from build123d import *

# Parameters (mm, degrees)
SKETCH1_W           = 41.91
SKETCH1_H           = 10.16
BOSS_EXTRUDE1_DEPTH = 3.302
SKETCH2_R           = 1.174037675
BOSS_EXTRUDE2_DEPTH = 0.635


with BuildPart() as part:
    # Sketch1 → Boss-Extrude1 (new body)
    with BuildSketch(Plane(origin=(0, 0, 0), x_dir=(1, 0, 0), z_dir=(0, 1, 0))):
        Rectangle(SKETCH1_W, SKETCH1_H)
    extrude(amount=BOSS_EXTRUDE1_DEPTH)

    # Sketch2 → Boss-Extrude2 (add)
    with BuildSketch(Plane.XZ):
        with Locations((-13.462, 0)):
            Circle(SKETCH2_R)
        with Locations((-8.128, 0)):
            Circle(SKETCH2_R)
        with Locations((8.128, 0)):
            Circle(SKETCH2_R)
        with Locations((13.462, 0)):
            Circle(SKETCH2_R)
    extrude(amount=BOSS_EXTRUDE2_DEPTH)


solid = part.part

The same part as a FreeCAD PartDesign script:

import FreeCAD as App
import Part
import Sketcher

V = App.Vector
Q = App.Units.Quantity


def add_polygon(sketch, points):
    """Adds a closed chain of lines whose ends are joined by coincident constraints."""
    first, n = sketch.GeometryCount, len(points)
    for a, b in zip(points, points[1:] + points[:1]):
        sketch.addGeometry(Part.LineSegment(App.Vector(*a, 0), App.Vector(*b, 0)), False)
    for i in range(n):
        sketch.addConstraint(Sketcher.Constraint("Coincident", first + i, 2, first + (i + 1) % n, 1))

doc = App.newDocument("Part")
body = doc.addObject("PartDesign::Body", "Body")

# Sketch on XZ plane
sketch1 = doc.addObject("Sketcher::SketchObject", "Sketch")
body.addObject(sketch1)
sketch1.AttachmentSupport = (doc.XZ_Plane, [""])
sketch1.MapMode = "FlatFace"
add_polygon(sketch1, [(-21, -5), (-21, 5), (21, 5), (21, -5)])  # lines 0-3
sketch1.addConstraint(Sketcher.Constraint("Vertical", 0))
sketch1.addConstraint(Sketcher.Constraint("Horizontal", 1))
sketch1.addConstraint(Sketcher.Constraint("Vertical", 2))
sketch1.addConstraint(Sketcher.Constraint("Horizontal", 3))
sketch1.addConstraint(Sketcher.Constraint("Symmetric", 0, 2, 2, 2, -1, 1))
sketch1.addConstraint(Sketcher.Constraint("DistanceY", 0, 1, 0, 2, Q("0.4 in")))
sketch1.addConstraint(Sketcher.Constraint("DistanceX", 1, 1, 1, 2, Q("1.65 in")))
pad1 = doc.addObject("PartDesign::Pad", "Pad")
body.addObject(pad1)
pad1.Profile = sketch1
pad1.Length = Q("0.13 in")
pad1.Reversed = True

# Sketch on XZ plane
sketch2 = doc.addObject("Sketcher::SketchObject", "Sketch001")
body.addObject(sketch2)
sketch2.AttachmentSupport = (doc.XZ_Plane, [""])
sketch2.MapMode = "FlatFace"
sketch2.addGeometry(Part.Circle(V(-13.5, 0, 0), V(0, 0, 1), 1.2), False)
sketch2.addGeometry(Part.Circle(V(-8.1, 0, 0), V(0, 0, 1), 1.2), False)
sketch2.addGeometry(Part.Circle(V(8.1, 0, 0), V(0, 0, 1), 1.2), False)
sketch2.addGeometry(Part.Circle(V(13.5, 0, 0), V(0, 0, 1), 1.2), False)
sketch2.addConstraint(Sketcher.Constraint("Equal", 0, 1))
sketch2.addConstraint(Sketcher.Constraint("Equal", 1, 2))
sketch2.addConstraint(Sketcher.Constraint("Equal", 2, 3))
sketch2.addConstraint(Sketcher.Constraint("Symmetric", 1, 3, 2, 3, -1, 1))
sketch2.addConstraint(Sketcher.Constraint("Symmetric", 0, 3, 3, 3, -1, 1))
sketch2.addConstraint(Sketcher.Constraint("PointOnObject", 0, 3, -1))
sketch2.addConstraint(Sketcher.Constraint("PointOnObject", 1, 3, -1))
sketch2.addConstraint(Sketcher.Constraint("DistanceX", 0, 3, -1, 1, Q("0.53 in")))
sketch2.addConstraint(Sketcher.Constraint("DistanceX", 1, 3, -1, 1, Q("0.32 in")))
sketch2.addConstraint(Sketcher.Constraint("Diameter", 0, 2.348075))
pad2 = doc.addObject("PartDesign::Pad", "Pad001")
body.addObject(pad2)
pad2.Profile = sketch2
pad2.Length = Q("0.025 in")

doc.recompute()
